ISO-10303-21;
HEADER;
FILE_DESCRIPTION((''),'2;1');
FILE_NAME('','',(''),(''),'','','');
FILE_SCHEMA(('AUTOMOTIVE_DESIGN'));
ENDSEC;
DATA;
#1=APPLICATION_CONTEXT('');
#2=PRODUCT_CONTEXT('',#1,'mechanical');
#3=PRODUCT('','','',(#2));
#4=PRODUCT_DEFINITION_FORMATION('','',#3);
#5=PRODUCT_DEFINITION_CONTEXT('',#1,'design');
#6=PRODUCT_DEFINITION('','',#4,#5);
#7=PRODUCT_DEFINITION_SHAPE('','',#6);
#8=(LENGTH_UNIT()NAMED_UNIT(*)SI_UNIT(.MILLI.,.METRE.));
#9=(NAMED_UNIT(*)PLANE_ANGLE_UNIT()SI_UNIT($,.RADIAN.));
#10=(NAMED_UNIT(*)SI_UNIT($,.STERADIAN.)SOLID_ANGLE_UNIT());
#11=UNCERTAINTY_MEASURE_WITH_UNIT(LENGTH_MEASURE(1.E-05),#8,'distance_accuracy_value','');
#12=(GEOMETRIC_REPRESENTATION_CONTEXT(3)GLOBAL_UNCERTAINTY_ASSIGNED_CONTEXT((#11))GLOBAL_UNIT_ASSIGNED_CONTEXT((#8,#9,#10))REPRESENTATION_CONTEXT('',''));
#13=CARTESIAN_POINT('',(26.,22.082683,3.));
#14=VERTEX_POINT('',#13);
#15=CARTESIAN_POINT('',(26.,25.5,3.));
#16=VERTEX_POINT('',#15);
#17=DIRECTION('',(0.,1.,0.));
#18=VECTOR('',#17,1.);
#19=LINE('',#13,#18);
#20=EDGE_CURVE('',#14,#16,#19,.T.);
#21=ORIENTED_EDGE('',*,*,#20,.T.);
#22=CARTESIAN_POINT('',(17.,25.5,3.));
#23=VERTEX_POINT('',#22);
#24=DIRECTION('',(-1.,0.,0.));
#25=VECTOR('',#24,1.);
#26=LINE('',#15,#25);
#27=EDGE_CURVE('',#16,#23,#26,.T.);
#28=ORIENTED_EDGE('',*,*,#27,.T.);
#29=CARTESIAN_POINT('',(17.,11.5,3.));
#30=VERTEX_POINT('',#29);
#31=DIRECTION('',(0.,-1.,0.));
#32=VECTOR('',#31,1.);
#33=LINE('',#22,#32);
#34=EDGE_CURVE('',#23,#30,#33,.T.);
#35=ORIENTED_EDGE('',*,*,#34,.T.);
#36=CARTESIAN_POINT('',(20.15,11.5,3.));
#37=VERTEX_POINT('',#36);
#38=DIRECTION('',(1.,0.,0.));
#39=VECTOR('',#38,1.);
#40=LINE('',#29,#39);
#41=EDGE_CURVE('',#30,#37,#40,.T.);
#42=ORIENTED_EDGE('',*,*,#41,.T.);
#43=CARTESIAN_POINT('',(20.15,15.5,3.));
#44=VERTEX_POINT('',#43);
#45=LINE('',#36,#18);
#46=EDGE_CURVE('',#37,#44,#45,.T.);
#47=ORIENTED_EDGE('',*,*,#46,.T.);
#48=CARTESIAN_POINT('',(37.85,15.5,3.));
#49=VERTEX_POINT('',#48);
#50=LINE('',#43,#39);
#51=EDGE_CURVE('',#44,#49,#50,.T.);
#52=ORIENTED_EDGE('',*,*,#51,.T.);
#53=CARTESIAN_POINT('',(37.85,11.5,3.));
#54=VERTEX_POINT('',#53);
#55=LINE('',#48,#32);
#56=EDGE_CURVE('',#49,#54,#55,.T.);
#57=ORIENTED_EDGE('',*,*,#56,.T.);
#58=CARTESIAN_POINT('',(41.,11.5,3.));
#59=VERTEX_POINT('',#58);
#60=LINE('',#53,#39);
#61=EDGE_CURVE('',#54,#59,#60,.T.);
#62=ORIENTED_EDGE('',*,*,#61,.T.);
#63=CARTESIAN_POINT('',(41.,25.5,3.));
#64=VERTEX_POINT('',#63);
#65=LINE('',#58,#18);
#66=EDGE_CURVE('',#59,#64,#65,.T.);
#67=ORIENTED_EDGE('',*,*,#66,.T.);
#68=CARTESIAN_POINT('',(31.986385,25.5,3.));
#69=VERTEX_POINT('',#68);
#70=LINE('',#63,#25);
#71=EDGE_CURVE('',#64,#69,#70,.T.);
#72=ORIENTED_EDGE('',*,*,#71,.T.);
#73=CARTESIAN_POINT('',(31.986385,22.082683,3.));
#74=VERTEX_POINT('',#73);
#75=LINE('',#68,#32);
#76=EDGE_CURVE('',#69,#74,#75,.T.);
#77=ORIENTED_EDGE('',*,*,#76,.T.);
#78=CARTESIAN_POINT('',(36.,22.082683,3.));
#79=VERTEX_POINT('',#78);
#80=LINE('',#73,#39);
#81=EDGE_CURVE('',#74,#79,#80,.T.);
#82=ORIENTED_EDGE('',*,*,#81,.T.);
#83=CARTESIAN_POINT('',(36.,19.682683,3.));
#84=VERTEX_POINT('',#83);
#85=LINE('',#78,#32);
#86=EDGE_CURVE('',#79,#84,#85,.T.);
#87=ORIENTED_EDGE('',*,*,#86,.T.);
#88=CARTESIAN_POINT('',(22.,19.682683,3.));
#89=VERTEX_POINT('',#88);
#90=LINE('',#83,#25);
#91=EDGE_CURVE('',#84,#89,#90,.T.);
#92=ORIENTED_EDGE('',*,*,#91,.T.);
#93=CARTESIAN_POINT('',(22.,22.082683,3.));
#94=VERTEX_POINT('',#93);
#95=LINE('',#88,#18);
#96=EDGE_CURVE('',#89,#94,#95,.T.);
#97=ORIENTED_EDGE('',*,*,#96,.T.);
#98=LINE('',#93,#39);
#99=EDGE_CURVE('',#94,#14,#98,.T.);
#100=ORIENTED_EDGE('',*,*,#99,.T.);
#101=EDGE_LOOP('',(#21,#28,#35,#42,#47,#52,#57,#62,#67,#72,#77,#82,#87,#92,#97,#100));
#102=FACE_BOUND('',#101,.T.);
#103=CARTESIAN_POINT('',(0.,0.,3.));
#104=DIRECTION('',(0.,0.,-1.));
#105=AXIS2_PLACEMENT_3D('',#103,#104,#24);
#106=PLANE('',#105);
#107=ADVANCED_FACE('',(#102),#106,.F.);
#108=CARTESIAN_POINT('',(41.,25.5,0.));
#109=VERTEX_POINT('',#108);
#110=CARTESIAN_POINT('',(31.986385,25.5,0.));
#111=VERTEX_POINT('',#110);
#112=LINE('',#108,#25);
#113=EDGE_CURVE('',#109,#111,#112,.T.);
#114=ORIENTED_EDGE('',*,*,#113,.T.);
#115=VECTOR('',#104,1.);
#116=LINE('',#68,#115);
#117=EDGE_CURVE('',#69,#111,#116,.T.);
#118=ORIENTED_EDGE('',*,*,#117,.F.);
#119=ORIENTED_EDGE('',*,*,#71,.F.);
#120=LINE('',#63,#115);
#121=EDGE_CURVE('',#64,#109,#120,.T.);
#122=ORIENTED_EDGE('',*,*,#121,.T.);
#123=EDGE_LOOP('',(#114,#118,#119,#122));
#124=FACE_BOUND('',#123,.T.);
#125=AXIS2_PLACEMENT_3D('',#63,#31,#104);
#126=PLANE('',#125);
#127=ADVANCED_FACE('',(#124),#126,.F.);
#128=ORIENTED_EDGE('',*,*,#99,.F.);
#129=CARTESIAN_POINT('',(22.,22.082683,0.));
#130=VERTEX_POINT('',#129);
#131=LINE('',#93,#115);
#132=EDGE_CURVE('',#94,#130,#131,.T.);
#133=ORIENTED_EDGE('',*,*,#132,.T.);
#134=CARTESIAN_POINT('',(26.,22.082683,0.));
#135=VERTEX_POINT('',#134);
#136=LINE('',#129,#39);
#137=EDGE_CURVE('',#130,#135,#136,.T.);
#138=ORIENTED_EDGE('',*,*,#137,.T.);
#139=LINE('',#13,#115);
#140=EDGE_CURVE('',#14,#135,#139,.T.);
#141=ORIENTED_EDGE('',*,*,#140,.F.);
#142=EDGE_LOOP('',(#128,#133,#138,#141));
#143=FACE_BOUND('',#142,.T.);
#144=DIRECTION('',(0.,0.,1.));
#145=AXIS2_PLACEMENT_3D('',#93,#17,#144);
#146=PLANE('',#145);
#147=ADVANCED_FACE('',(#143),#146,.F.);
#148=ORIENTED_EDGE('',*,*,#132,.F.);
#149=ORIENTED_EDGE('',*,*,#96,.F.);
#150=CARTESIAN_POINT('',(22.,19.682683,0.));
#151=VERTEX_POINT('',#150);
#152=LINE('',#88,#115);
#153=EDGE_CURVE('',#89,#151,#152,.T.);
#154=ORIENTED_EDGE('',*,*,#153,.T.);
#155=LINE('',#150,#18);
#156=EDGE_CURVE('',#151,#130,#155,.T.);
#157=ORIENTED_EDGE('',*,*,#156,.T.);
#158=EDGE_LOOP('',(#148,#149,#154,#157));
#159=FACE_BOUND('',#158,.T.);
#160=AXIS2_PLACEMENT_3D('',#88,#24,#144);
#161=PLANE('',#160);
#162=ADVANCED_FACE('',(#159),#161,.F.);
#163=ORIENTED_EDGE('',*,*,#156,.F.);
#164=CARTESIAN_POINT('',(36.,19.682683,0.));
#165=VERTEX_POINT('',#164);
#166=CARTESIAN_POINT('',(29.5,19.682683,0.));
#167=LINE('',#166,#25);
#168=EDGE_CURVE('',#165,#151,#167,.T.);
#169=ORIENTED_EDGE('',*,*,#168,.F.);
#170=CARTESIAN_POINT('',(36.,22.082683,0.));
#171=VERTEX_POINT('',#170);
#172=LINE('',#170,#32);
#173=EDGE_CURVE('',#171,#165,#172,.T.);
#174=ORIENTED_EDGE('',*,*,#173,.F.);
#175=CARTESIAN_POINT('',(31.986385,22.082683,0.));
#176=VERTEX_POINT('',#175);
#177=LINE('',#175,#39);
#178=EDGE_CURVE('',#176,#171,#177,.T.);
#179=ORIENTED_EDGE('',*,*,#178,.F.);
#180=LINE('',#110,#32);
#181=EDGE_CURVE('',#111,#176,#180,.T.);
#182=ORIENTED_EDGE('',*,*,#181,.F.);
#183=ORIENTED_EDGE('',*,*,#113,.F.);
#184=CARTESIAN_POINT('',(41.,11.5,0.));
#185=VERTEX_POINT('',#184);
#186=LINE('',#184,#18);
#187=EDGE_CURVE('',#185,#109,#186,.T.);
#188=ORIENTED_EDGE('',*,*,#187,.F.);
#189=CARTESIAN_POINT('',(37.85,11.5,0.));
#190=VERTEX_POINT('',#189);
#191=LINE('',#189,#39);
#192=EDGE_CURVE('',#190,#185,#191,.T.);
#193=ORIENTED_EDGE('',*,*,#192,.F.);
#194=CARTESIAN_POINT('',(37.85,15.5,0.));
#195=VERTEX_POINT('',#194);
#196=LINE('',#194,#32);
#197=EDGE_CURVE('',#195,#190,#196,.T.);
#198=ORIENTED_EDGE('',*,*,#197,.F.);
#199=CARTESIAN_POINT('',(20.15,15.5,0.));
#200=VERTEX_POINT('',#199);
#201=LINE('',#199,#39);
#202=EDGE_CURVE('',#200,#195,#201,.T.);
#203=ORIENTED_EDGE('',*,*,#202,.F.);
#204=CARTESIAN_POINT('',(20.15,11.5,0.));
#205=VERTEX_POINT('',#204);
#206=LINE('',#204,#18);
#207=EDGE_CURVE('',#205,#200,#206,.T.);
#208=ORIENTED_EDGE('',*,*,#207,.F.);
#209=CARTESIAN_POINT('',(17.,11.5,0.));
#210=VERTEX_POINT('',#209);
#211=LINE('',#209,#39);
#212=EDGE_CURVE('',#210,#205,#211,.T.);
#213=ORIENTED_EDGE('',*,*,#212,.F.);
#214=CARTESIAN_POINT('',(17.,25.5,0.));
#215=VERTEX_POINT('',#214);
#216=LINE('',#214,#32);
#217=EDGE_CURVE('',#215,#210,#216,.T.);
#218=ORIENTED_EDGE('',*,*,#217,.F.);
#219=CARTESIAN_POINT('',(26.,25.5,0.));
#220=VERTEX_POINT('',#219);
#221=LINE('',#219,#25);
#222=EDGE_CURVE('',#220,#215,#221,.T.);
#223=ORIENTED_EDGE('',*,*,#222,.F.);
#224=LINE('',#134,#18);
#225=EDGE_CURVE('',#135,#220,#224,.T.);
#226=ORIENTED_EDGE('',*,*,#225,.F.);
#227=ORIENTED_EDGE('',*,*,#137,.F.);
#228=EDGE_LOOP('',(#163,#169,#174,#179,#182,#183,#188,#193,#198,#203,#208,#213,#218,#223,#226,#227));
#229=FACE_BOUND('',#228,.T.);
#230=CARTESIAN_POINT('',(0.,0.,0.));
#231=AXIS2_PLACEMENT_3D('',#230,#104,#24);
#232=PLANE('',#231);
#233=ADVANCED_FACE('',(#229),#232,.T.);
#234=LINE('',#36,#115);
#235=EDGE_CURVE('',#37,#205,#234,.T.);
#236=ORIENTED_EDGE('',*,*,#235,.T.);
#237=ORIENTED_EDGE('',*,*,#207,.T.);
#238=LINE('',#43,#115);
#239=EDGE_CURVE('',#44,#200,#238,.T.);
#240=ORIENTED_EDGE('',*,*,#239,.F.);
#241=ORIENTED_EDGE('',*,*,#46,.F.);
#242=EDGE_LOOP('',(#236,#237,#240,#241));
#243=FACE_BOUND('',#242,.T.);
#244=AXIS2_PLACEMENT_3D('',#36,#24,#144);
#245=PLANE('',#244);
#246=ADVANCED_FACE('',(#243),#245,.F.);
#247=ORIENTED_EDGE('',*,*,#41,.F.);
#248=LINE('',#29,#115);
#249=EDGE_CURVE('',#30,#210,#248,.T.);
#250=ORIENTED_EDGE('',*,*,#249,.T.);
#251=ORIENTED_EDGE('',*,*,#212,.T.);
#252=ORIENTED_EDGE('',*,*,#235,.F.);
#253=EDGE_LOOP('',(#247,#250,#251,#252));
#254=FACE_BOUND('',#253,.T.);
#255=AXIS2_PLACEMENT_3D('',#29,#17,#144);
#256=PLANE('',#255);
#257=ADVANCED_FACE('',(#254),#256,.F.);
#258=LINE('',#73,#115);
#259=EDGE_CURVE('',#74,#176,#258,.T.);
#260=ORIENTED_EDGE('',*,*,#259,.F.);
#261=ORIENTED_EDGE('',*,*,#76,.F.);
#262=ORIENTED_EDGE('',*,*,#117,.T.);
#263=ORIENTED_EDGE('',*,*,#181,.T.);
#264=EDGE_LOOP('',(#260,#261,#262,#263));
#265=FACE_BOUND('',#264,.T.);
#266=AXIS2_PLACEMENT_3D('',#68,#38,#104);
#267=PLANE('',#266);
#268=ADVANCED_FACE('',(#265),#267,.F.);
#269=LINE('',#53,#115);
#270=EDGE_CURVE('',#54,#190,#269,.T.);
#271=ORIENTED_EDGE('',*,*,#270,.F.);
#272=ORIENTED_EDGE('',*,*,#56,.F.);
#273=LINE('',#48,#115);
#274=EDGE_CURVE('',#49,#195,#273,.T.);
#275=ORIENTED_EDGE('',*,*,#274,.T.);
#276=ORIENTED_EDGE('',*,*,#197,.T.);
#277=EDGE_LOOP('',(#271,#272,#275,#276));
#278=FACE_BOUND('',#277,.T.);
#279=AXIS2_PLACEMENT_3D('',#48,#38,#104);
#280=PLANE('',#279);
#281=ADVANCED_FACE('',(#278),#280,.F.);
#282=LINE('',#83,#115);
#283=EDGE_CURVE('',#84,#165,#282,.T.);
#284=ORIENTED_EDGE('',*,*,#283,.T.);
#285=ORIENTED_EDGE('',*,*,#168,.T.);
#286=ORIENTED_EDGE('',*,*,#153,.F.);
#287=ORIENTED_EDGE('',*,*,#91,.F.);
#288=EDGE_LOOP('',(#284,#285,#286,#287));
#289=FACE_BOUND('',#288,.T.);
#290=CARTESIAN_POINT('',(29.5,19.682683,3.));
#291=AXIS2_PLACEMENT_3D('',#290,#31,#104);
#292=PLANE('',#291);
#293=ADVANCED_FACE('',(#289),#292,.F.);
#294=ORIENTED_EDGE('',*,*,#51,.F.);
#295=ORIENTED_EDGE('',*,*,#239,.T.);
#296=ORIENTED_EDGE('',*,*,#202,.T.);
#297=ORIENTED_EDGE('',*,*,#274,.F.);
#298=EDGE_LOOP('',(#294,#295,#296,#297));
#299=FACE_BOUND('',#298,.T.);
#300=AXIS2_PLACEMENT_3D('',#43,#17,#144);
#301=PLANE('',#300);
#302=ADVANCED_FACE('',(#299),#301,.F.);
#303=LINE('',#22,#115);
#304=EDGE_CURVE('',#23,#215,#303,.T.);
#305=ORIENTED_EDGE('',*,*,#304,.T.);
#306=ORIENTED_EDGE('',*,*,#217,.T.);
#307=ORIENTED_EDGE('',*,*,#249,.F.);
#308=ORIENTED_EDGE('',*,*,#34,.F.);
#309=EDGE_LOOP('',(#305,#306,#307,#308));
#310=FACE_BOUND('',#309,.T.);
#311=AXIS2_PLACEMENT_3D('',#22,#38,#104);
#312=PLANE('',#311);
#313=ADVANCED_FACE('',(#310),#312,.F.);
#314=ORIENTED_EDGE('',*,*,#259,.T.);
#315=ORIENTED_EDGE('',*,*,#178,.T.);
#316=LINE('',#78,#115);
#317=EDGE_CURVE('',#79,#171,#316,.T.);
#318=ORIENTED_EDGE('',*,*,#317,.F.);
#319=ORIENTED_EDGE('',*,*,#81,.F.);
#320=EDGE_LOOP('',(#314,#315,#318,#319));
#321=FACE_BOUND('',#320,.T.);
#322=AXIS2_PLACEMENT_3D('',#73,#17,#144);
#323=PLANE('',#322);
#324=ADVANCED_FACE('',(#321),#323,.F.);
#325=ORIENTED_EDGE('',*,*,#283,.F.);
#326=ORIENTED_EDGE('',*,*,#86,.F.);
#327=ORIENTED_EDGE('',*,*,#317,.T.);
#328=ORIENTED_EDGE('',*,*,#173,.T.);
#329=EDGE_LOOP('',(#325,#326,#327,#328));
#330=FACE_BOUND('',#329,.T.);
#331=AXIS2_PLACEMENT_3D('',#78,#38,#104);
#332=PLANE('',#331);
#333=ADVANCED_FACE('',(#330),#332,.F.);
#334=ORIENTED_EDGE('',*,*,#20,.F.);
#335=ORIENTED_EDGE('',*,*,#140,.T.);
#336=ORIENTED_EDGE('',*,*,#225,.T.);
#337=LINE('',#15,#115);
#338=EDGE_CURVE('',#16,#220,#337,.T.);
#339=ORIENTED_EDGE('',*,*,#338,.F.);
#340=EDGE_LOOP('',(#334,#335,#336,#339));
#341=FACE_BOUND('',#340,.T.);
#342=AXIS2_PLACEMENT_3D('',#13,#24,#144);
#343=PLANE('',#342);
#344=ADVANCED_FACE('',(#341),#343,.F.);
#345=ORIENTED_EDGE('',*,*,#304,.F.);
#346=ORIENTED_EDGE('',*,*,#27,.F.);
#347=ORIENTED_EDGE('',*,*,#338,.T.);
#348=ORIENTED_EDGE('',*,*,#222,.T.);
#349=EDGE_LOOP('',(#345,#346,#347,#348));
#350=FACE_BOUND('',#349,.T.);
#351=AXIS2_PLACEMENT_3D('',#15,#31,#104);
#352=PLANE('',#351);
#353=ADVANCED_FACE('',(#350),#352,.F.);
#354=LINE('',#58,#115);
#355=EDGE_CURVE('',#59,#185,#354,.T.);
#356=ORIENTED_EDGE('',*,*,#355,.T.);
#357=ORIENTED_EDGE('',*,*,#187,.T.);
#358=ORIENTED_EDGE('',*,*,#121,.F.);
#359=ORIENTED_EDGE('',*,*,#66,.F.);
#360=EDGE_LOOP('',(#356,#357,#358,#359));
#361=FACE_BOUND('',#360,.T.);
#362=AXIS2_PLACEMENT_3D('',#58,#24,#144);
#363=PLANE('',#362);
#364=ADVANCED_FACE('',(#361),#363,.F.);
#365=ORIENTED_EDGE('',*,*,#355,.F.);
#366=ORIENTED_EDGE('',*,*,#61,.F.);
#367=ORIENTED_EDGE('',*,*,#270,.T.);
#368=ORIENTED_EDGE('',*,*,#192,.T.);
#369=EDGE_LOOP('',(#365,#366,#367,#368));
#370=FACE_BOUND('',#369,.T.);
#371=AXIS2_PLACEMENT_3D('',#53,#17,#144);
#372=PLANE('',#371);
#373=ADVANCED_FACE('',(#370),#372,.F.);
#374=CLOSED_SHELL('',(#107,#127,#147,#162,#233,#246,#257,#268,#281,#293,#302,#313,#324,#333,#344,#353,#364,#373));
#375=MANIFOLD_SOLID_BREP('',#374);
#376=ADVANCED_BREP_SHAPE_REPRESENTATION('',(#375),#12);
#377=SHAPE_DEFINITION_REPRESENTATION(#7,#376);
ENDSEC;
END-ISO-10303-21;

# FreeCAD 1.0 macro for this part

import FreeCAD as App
import Part
import Sketcher
from FreeCAD import Vector

doc = App.newDocument("Part")
body = doc.addObject("PartDesign::Body", "Body")

# Sketch on XY plane
sketch1 = body.newObject("Sketcher::SketchObject", "Sketch")
sketch1.AttachmentSupport = (doc.getObject("XY_Plane"), [""])
sketch1.MapMode = "FlatFace"
sketch1.addGeometry([
    Part.LineSegment(Vector(22, 19.682683, 0), Vector(22, 22.082683, 0)),  # 0
    Part.LineSegment(Vector(22, 22.082683, 0), Vector(26, 22.082683, 0)),  # 1
    Part.LineSegment(Vector(26, 22.082683, 0), Vector(26, 25.5, 0)),  # 2
    Part.LineSegment(Vector(26, 25.5, 0), Vector(17, 25.5, 0)),  # 3
    Part.LineSegment(Vector(17, 25.5, 0), Vector(17, 11.5, 0)),  # 4
    Part.LineSegment(Vector(17, 11.5, 0), Vector(20.15, 11.5, 0)),  # 5
    Part.LineSegment(Vector(20.15, 11.5, 0), Vector(20.15, 15.5, 0)),  # 6
    Part.LineSegment(Vector(20.15, 15.5, 0), Vector(37.85, 15.5, 0)),  # 7
    Part.LineSegment(Vector(37.85, 15.5, 0), Vector(37.85, 11.5, 0)),  # 8
    Part.LineSegment(Vector(37.85, 11.5, 0), Vector(41, 11.5, 0)),  # 9
    Part.LineSegment(Vector(41, 11.5, 0), Vector(41, 25.5, 0)),  # 10
    Part.LineSegment(Vector(41, 25.5, 0), Vector(31.986385, 25.5, 0)),  # 11
    Part.LineSegment(Vector(31.986385, 25.5, 0), Vector(31.986385, 22.082683, 0)),  # 12
    Part.LineSegment(Vector(31.986385, 22.082683, 0), Vector(36, 22.082683, 0)),  # 13
    Part.LineSegment(Vector(36, 22.082683, 0), Vector(36, 19.682683, 0)),  # 14
    Part.LineSegment(Vector(36, 19.682683, 0), Vector(22, 19.682683, 0)),  # 15
], False)
sketch1.addConstraint([
    Sketcher.Constraint("Coincident", 0, 2, 1, 1),
    Sketcher.Constraint("Coincident", 1, 2, 2, 1),
    Sketcher.Constraint("Coincident", 2, 2, 3, 1),
    Sketcher.Constraint("Coincident", 3, 2, 4, 1),
    Sketcher.Constraint("Coincident", 4, 2, 5, 1),
    Sketcher.Constraint("Coincident", 5, 2, 6, 1),
    Sketcher.Constraint("Coincident", 6, 2, 7, 1),
    Sketcher.Constraint("Coincident", 7, 2, 8, 1),
    Sketcher.Constraint("Coincident", 8, 2, 9, 1),
    Sketcher.Constraint("Coincident", 9, 2, 10, 1),
    Sketcher.Constraint("Coincident", 10, 2, 11, 1),
    Sketcher.Constraint("Coincident", 11, 2, 12, 1),
    Sketcher.Constraint("Coincident", 12, 2, 13, 1),
    Sketcher.Constraint("Coincident", 13, 2, 14, 1),
    Sketcher.Constraint("Coincident", 14, 2, 15, 1),
    Sketcher.Constraint("Coincident", 15, 2, 0, 1),
    Sketcher.Constraint("Vertical", 0),
    Sketcher.Constraint("Horizontal", 1),
    Sketcher.Constraint("Vertical", 2),
    Sketcher.Constraint("Horizontal", 3),
    Sketcher.Constraint("Vertical", 4),
    Sketcher.Constraint("Horizontal", 5),
    Sketcher.Constraint("Vertical", 6),
    Sketcher.Constraint("Horizontal", 7),
    Sketcher.Constraint("Vertical", 8),
    Sketcher.Constraint("Horizontal", 9),
    Sketcher.Constraint("Vertical", 10),
    Sketcher.Constraint("Horizontal", 11),
    Sketcher.Constraint("Vertical", 12),
    Sketcher.Constraint("Horizontal", 13),
    Sketcher.Constraint("Vertical", 14),
    Sketcher.Constraint("Horizontal", 15),
    Sketcher.Constraint("Horizontal", 5, 2, 8, 2),
    Sketcher.Constraint("Horizontal", 3, 2, 10, 2),
    Sketcher.Constraint("Horizontal", 1, 2, 12, 2),
    Sketcher.Constraint("Equal", 5, 9),
    Sketcher.Constraint("Equal", 15, 4),
    Sketcher.Constraint("Equal", 1, 6),
    Sketcher.Constraint("DistanceX", 1, 1, 1, 2, 4.0),
    Sketcher.Constraint("DistanceX", 3, 2, 3, 1, 9.0),
    Sketcher.Constraint("DistanceX", 15, 2, 15, 1, 14.0),
    Sketcher.Constraint("DistanceX", 7, 1, 7, 2, 17.7),
    Sketcher.Constraint("DistanceY", 0, 1, 0, 2, 2.4),
    Sketcher.Constraint("DistanceX", -1, 1, 0, 2, 22.0),
    Sketcher.Constraint("DistanceX", -1, 1, 9, 2, 41.0),
    Sketcher.Constraint("DistanceY", -1, 1, 2, 2, 25.5),
    Sketcher.Constraint("DistanceX", 11, 2, 11, 1, 9.013615),
    Sketcher.Constraint("DistanceY", 2, 1, 2, 2, 3.417317),
])
pad1 = body.newObject("PartDesign::Pad", "Pad")
pad1.Profile = sketch1
pad1.Length = 3

doc.recompute()
